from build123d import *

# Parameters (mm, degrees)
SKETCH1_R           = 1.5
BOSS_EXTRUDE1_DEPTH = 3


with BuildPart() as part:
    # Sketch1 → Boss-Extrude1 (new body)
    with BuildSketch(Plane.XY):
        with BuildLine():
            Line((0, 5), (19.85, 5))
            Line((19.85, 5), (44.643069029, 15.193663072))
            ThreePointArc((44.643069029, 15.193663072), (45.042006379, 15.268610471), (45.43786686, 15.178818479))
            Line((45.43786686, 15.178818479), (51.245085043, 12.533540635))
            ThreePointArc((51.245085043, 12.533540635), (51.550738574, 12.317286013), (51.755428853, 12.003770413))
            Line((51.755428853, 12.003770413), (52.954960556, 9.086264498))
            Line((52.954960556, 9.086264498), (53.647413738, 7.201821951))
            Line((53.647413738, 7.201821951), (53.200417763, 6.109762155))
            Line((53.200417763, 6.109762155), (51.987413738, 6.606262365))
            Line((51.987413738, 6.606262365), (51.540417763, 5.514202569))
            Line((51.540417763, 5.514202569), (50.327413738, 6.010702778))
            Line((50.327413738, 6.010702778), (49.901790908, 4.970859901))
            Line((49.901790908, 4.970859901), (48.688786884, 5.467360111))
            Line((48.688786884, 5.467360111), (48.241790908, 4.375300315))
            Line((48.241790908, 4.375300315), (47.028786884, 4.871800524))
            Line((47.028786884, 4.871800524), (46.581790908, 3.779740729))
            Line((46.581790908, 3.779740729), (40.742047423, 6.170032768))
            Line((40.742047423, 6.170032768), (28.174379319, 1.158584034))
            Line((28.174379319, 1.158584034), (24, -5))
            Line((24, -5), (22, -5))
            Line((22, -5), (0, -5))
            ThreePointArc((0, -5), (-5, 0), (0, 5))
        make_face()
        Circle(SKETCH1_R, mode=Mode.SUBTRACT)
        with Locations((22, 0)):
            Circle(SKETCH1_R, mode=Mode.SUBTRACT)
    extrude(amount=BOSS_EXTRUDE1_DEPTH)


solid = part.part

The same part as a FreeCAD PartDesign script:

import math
import FreeCAD as App
import Part
import Sketcher
Q = App.Units.Quantity

doc = App.newDocument("Part")
params = doc.addObject("Spreadsheet::Sheet", "Params")
for row, (alias, value) in enumerate([
    ("sketch1_diameter", "3 mm"),
    ("sketch1_radius", "5 mm"),
    ("sketch1_radius2", "1 mm"),
    ("sketch1_width", "24 mm"),
    ("sketch1_width2", "19.85 mm"),
    ("pad1_length", "3 mm"),
], start=1):
    params.set(f"A{row}", alias)
    params.set(f"B{row}", "=" + value)
    params.setAlias(f"B{row}", alias)

body = doc.addObject("PartDesign::Body", "Body")

# Sketch on XY plane
sketch1 = body.newObject("Sketcher::SketchObject", "Sketch")
sketch1.AttachmentSupport = (doc.getObject("XY_Plane"), [""])
sketch1.MapMode = "FlatFace"
sketch1.addGeometry(Part.LineSegment(App.Vector(19.9, 5, 0), App.Vector(0, 5, 0)), False)
sketch1.addGeometry(Part.ArcOfCircle(Part.Circle(App.Vector(0, 0, 0), App.Vector(0, 0, 1), 5), math.radians(90), math.radians(270)), False)
sketch1.addGeometry(Part.LineSegment(App.Vector(0, -5, 0), App.Vector(24, -5, 0)), False)
sketch1.addGeometry(Part.LineSegment(App.Vector(24, -5, 0), App.Vector(28.2, 1.2, 0)), False)
sketch1.addGeometry(Part.LineSegment(App.Vector(28.2, 1.2, 0), App.Vector(40.7, 6.2, 0)), False)
sketch1.addGeometry(Part.LineSegment(App.Vector(40.7, 6.2, 0), App.Vector(46.6, 3.8, 0)), False)
sketch1.addGeometry(Part.LineSegment(App.Vector(46.6, 3.8, 0), App.Vector(47, 4.9, 0)), False)
sketch1.addGeometry(Part.LineSegment(App.Vector(47, 4.9, 0), App.Vector(48.2, 4.4, 0)), False)
sketch1.addGeometry(Part.LineSegment(App.Vector(48.2, 4.4, 0), App.Vector(48.7, 5.5, 0)), False)
sketch1.addGeometry(Part.LineSegment(App.Vector(48.7, 5.5, 0), App.Vector(49.9, 5, 0)), False)
sketch1.addGeometry(Part.LineSegment(App.Vector(49.9, 5, 0), App.Vector(50.3, 6, 0)), False)
sketch1.addGeometry(Part.LineSegment(App.Vector(50.3, 6, 0), App.Vector(51.5, 5.5, 0)), False)
sketch1.addGeometry(Part.LineSegment(App.Vector(51.5, 5.5, 0), App.Vector(52, 6.6, 0)), False)
sketch1.addGeometry(Part.LineSegment(App.Vector(52, 6.6, 0), App.Vector(53.2, 6.1, 0)), False)
sketch1.addGeometry(Part.LineSegment(App.Vector(53.2, 6.1, 0), App.Vector(53.6, 7.2, 0)), False)
sketch1.addGeometry(Part.LineSegment(App.Vector(53.6, 7.2, 0), App.Vector(53, 9.1, 0)), False)
sketch1.addGeometry(Part.LineSegment(App.Vector(53, 9.1, 0), App.Vector(51.8, 12, 0)), False)
sketch1.addGeometry(Part.ArcOfCircle(Part.Circle(App.Vector(50.8, 11.6, 0), App.Vector(0, 0, 1), 1), math.radians(22), math.radians(66)), False)
sketch1.addGeometry(Part.LineSegment(App.Vector(51.2, 12.5, 0), App.Vector(45.4, 15.2, 0)), False)
sketch1.addGeometry(Part.ArcOfCircle(Part.Circle(App.Vector(45, 14.3, 0), App.Vector(0, 0, 1), 1), math.radians(66), math.radians(112)), False)
sketch1.addGeometry(Part.LineSegment(App.Vector(44.6, 15.2, 0), App.Vector(19.9, 5, 0)), False)
sketch1.addGeometry(Part.Circle(App.Vector(22, 0, 0), App.Vector(0, 0, 1), 1.5), False)
sketch1.addGeometry(Part.Circle(App.Vector(0, 0, 0), App.Vector(0, 0, 1), 1.5), False)
sketch1.addConstraint(Sketcher.Constraint("Tangent", 0, 2, 1, 1))
sketch1.addConstraint(Sketcher.Constraint("Tangent", 1, 2, 2, 1))
sketch1.addConstraint(Sketcher.Constraint("Coincident", 2, 2, 3, 1))
sketch1.addConstraint(Sketcher.Constraint("Coincident", 3, 2, 4, 1))
sketch1.addConstraint(Sketcher.Constraint("Coincident", 4, 2, 5, 1))
sketch1.addConstraint(Sketcher.Constraint("Coincident", 5, 2, 6, 1))
sketch1.addConstraint(Sketcher.Constraint("Coincident", 6, 2, 7, 1))
sketch1.addConstraint(Sketcher.Constraint("Coincident", 7, 2, 8, 1))
sketch1.addConstraint(Sketcher.Constraint("Coincident", 8, 2, 9, 1))
sketch1.addConstraint(Sketcher.Constraint("Coincident", 9, 2, 10, 1))
sketch1.addConstraint(Sketcher.Constraint("Coincident", 10, 2, 11, 1))
sketch1.addConstraint(Sketcher.Constraint("Coincident", 11, 2, 12, 1))
sketch1.addConstraint(Sketcher.Constraint("Coincident", 12, 2, 13, 1))
sketch1.addConstraint(Sketcher.Constraint("Coincident", 13, 2, 14, 1))
sketch1.addConstraint(Sketcher.Constraint("Coincident", 14, 2, 15, 1))
sketch1.addConstraint(Sketcher.Constraint("Coincident", 15, 2, 16, 1))
sketch1.addConstraint(Sketcher.Constraint("Tangent", 16, 2, 17, 1))
sketch1.addConstraint(Sketcher.Constraint("Tangent", 17, 2, 18, 1))
sketch1.addConstraint(Sketcher.Constraint("Tangent", 18, 2, 19, 1))
sketch1.addConstraint(Sketcher.Constraint("Tangent", 19, 2, 20, 1))
sketch1.addConstraint(Sketcher.Constraint("Coincident", 20, 2, 0, 1))
sketch1.addConstraint(Sketcher.Constraint("Horizontal", 0))
sketch1.addConstraint(Sketcher.Constraint("Horizontal", 2))
sketch1.addConstraint(Sketcher.Constraint("Coincident", 1, 3, -1, 1))
sketch1.addConstraint(Sketcher.Constraint("Coincident", 22, 3, -1, 1))
sketch1.addConstraint(Sketcher.Constraint("Equal", 17, 19))
sketch1.addConstraint(Sketcher.Constraint("Equal", 21, 22))
sketch1.addConstraint(Sketcher.Constraint("PointOnObject", 21, 3, -1))
sketch1.addConstraint(Sketcher.Constraint("Perpendicular", 5, 6))
sketch1.addConstraint(Sketcher.Constraint("Perpendicular", 6, 7))
sketch1.addConstraint(Sketcher.Constraint("Perpendicular", 7, 8))
sketch1.addConstraint(Sketcher.Constraint("Perpendicular", 8, 9))
sketch1.addConstraint(Sketcher.Constraint("Perpendicular", 9, 10))
sketch1.addConstraint(Sketcher.Constraint("Perpendicular", 10, 11))
sketch1.addConstraint(Sketcher.Constraint("Perpendicular", 11, 12))
sketch1.addConstraint(Sketcher.Constraint("Perpendicular", 12, 13))
sketch1.addConstraint(Sketcher.Constraint("Perpendicular", 13, 14))
sketch1.addConstraint(Sketcher.Constraint("Perpendicular", 16, 20))
sketch1.addConstraint(Sketcher.Constraint("Equal", 6, 8))
sketch1.addConstraint(Sketcher.Constraint("Equal", 7, 9))
sketch1.addConstraint(Sketcher.Constraint("Equal", 9, 11))
sketch1.addConstraint(Sketcher.Constraint("Equal", 8, 12))
sketch1.addConstraint(Sketcher.Constraint("Equal", 11, 13))
sketch1.addConstraint(Sketcher.Constraint("Equal", 12, 14))
sketch1.addConstraint(Sketcher.Constraint("Diameter", 21, Q("3 mm")))
sketch1.addConstraint(Sketcher.Constraint("Radius", 1, Q("5 mm")))
sketch1.addConstraint(Sketcher.Constraint("Radius", 17, Q("1 mm")))
sketch1.addConstraint(Sketcher.Constraint("DistanceX", 2, 1, 2, 2, Q("24 mm")))
sketch1.addConstraint(Sketcher.Constraint("DistanceX", -1, 1, 21, 3, Q("22 mm")))
sketch1.addConstraint(Sketcher.Constraint("DistanceX", 0, 2, 0, 1, Q("19.85 mm")))
sketch1.addConstraint(Sketcher.Constraint("Angle", 3, Q("55.87 deg")))
sketch1.addConstraint(Sketcher.Constraint("Angle", 4, Q("21.74 deg")))
sketch1.addConstraint(Sketcher.Constraint("Angle", 5, Q("-22.26 deg")))
sketch1.addConstraint(Sketcher.Constraint("Angle", 16, Q("112.35 deg")))
sketch1.addConstraint(Sketcher.Constraint("Angle", 18, Q("155.51 deg")))
sketch1.addConstraint(Sketcher.Constraint("Distance", 3, Q("7.44 mm")))
sketch1.addConstraint(Sketcher.Constraint("Distance", 4, Q("13.53 mm")))
sketch1.addConstraint(Sketcher.Constraint("Distance", 5, Q("6.31 mm")))
sketch1.addConstraint(Sketcher.Constraint("Distance", 6, Q("1.18 mm")))
sketch1.addConstraint(Sketcher.Constraint("DistanceX", 5, 2, 7, 2, Q("1.66 mm")))
sketch1.addConstraint(Sketcher.Constraint("DistanceY", 3, 2, 19, 3, Q("13.110201 mm")))
sketch1.addConstraint(Sketcher.Constraint("Distance", 10, Q("1.123578 mm")))
sketch1.addConstraint(Sketcher.Constraint("Distance", 15, Q("2.007639 mm")))
sketch1.addConstraint(Sketcher.Constraint("DistanceX", -1, 1, 17, 3, Q("50.830551 mm")))
sketch1.setExpression("Constraints[44]", "Params.sketch1_diameter")
sketch1.setExpression("Constraints[45]", "Params.sketch1_radius")
sketch1.setExpression("Constraints[46]", "Params.sketch1_radius2")
sketch1.setExpression("Constraints[47]", "Params.sketch1_width")
sketch1.setExpression("Constraints[49]", "Params.sketch1_width2")
pad1 = body.newObject("PartDesign::Pad", "Pad")
pad1.Profile = sketch1
pad1.setExpression("Length", "Params.pad1_length")

doc.recompute()
